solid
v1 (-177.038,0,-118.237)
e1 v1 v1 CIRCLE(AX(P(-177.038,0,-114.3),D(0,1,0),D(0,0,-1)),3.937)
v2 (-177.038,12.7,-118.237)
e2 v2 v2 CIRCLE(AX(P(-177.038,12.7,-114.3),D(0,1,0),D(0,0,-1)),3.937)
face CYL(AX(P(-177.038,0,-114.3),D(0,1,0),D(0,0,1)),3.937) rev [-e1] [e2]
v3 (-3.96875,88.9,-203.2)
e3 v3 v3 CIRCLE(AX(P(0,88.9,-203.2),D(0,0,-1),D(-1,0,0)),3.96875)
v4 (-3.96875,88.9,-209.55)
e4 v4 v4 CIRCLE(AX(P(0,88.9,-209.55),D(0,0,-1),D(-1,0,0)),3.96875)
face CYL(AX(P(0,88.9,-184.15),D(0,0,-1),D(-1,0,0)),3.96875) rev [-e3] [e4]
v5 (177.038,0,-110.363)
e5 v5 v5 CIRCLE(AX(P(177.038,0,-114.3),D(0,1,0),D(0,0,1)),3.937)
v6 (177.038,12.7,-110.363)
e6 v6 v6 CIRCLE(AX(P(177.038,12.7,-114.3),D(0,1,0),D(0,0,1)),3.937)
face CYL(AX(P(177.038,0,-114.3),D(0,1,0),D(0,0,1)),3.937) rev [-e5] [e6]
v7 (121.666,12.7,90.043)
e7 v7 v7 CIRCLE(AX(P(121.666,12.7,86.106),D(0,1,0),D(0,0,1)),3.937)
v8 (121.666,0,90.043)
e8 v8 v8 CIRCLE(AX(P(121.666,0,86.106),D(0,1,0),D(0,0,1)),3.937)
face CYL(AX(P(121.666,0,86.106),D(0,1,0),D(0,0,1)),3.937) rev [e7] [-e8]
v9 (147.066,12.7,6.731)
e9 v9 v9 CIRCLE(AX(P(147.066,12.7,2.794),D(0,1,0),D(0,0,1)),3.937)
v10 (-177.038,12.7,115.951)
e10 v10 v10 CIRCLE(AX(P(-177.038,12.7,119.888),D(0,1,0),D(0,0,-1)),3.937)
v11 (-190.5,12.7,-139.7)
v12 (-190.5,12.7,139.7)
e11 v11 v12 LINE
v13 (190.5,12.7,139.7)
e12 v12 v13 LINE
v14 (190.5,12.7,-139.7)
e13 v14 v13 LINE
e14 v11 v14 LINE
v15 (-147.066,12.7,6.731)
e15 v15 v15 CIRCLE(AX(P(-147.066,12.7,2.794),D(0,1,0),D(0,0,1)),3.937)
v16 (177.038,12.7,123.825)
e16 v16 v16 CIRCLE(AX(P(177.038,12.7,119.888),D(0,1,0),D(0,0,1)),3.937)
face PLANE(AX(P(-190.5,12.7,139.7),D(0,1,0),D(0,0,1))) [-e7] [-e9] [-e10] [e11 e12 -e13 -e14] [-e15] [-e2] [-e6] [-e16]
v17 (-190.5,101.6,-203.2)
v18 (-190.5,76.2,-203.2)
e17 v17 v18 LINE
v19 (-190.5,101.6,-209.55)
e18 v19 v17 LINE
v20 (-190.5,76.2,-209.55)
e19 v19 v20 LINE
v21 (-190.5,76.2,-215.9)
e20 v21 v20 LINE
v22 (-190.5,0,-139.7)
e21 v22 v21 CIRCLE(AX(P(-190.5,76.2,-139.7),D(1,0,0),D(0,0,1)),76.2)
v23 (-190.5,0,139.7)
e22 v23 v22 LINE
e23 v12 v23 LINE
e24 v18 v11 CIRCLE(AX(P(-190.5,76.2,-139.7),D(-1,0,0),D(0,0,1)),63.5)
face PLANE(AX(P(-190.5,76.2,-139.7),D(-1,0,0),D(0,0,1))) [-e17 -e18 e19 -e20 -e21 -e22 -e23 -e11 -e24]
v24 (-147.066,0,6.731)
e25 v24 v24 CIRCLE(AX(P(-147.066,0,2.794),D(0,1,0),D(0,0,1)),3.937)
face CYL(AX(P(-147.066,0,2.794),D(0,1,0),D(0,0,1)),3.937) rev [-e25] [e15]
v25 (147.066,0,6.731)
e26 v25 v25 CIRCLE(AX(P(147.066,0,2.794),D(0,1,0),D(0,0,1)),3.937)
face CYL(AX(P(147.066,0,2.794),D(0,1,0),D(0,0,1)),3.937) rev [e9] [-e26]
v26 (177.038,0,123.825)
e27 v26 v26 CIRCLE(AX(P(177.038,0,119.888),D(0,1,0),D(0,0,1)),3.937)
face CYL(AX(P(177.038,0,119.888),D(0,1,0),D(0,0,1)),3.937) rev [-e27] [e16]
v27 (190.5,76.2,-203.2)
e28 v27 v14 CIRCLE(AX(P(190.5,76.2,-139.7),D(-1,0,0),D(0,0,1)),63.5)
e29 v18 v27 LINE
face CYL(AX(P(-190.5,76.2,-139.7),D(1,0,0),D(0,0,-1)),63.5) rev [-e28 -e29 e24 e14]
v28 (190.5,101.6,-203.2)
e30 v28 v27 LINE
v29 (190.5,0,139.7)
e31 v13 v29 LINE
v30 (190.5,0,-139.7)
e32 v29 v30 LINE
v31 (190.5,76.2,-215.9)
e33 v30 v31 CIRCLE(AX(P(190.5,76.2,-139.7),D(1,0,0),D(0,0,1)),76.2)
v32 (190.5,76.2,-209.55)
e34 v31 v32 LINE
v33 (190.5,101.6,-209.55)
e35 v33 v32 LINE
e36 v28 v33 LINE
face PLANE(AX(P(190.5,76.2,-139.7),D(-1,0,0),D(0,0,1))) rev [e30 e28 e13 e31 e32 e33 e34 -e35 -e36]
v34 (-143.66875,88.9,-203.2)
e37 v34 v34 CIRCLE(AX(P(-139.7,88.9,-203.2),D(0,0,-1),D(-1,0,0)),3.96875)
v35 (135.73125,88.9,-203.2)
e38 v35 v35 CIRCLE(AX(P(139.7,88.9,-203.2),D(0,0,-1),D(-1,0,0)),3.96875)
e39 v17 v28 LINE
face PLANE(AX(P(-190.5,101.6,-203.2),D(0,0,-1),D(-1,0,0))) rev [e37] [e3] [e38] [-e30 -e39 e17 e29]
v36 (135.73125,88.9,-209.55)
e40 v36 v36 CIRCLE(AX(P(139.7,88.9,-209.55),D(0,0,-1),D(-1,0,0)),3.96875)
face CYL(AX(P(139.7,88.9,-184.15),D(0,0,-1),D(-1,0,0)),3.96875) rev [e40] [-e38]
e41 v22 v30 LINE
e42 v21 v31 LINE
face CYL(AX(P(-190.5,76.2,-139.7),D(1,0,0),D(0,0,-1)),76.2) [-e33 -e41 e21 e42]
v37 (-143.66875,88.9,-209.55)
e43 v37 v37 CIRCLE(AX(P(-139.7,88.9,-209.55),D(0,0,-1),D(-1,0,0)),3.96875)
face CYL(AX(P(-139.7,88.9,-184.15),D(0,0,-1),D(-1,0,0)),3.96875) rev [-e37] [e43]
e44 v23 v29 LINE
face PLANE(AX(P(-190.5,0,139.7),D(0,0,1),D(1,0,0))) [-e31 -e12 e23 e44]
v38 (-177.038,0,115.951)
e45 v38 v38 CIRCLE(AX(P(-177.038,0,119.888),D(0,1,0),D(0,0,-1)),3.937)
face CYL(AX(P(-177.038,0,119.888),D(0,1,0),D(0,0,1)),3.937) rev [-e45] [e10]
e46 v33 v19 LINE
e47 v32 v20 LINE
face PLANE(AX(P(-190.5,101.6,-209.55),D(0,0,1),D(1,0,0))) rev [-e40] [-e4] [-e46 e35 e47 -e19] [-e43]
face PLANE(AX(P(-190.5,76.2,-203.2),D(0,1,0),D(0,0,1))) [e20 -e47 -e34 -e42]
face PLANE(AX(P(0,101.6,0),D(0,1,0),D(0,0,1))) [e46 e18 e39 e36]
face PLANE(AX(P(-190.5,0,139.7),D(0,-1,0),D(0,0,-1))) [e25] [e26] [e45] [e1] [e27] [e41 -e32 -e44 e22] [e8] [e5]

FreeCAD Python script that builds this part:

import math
import FreeCAD as App
import Part
import Sketcher

V = App.Vector
Q = App.Units.Quantity

doc = App.newDocument("Part")
body = doc.addObject("PartDesign::Body", "Body")

# Sketch on YZ plane
sketch1 = doc.addObject("Sketcher::SketchObject", "Sketch")
body.addObject(sketch1)
sketch1.AttachmentSupport = (doc.YZ_Plane, [""])
sketch1.MapMode = "FlatFace"
sketch1.addGeometry([
    Part.LineSegment(V(0, 140, 0), V(0, -140, 0)),  # 0
    Part.ArcOfCircle(Part.Circle(V(76, -140, 0), V(0, 0, 1), 76), math.radians(-180), math.radians(-90)),  # 1
    Part.LineSegment(V(76, -216, 0), V(76, -203, 0)),  # 2
    Part.ArcOfCircle(Part.Circle(V(76, -140, 0), V(0, 0, 1), 64), math.radians(-180), math.radians(-90)),  # 3
    Part.LineSegment(V(13, -140, 0), V(13, 140, 0)),  # 4
    Part.LineSegment(V(13, 140, 0), V(0, 140, 0)),  # 5
], False)
sketch1.addConstraint([
    Sketcher.Constraint("Tangent", 0, 2, 1, 1),
    Sketcher.Constraint("Coincident", 1, 2, 2, 1),
    Sketcher.Constraint("Coincident", 2, 2, 3, 2),
    Sketcher.Constraint("Tangent", 3, 1, 4, 1),
    Sketcher.Constraint("Coincident", 4, 2, 5, 1),
    Sketcher.Constraint("Coincident", 5, 2, 0, 1),
    Sketcher.Constraint("Vertical", 0),
    Sketcher.Constraint("Vertical", 2),
    Sketcher.Constraint("Vertical", 4),
    Sketcher.Constraint("Horizontal", 5),
    Sketcher.Constraint("Coincident", 3, 3, 1, 3),
    Sketcher.Constraint("Symmetric", 0, 2, 5, 2, -1, 1),
    Sketcher.Constraint("Vertical", 3, 3, 1, 2),
    Sketcher.Constraint("Radius", 1, Q("3 in")),
    Sketcher.Constraint("Radius", 3, Q("2.5 in")),
    Sketcher.Constraint("DistanceY", 0, 2, 0, 1, Q("11 in")),
])
pad1 = doc.addObject("PartDesign::Pad", "Pad")
body.addObject(pad1)
pad1.Profile = sketch1
pad1.Type = "TwoLengths"
pad1.Length = Q("7.5 in")
pad1.Length2 = Q("7.5 in")

# Sketch on XZ plane
sketch2 = doc.addObject("Sketcher::SketchObject", "Sketch001")
body.addObject(sketch2)
sketch2.AttachmentSupport = (doc.XZ_Plane, [""])
sketch2.MapMode = "FlatFace"
sketch2.AttachmentOffset = App.Placement(V(0, 0, -3 * 25.4), App.Rotation())
sketch2.addGeometry([
    Part.LineSegment(V(-190, -210, 0), V(-190, -203, 0)),
    Part.LineSegment(V(-190, -203, 0), V(190, -203, 0)),
    Part.LineSegment(V(190, -203, 0), V(190, -210, 0)),
    Part.LineSegment(V(190, -210, 0), V(-190, -210, 0)),
], False)
sketch2.addConstraint([
    Sketcher.Constraint("Coincident", 0, 2, 1, 1),
    Sketcher.Constraint("Coincident", 1, 2, 2, 1),
    Sketcher.Constraint("Coincident", 2, 2, 3, 1),
    Sketcher.Constraint("Coincident", 3, 2, 0, 1),
    Sketcher.Constraint("Vertical", 0),
    Sketcher.Constraint("Horizontal", 1),
    Sketcher.Constraint("Vertical", 2),
    Sketcher.Constraint("Horizontal", 3),
    Sketcher.Constraint("DistanceX", 1, 1, 1, 2, Q("15 in")),
    Sketcher.Constraint("DistanceY", 0, 2, -1, 1, Q("8 in")),
    Sketcher.Constraint("DistanceY", 0, 1, 0, 2, Q("0.25 in")),
    Sketcher.Constraint("DistanceX", 0, 2, -1, 1, Q("7.5 in")),
])
pad2 = doc.addObject("PartDesign::Pad", "Pad001")
body.addObject(pad2)
pad2.Profile = sketch2
pad2.Length = Q("1 in")
pad2.Reversed = True

# Sketch on XY plane
sketch3 = doc.addObject("Sketcher::SketchObject", "Sketch002")
body.addObject(sketch3)
sketch3.AttachmentSupport = (doc.XY_Plane, [""])
sketch3.MapMode = "FlatFace"
sketch3.AttachmentOffset = App.Placement(V(0, 0, -8.25 * 25.4), App.Rotation())
sketch3.addGeometry([
    Part.Circle(V(139.7, 88.9, 0), V(0, 0, 1), 4),
    Part.Circle(V(-139.7, 88.9, 0), V(0, 0, 1), 4),
    Part.Circle(V(0, 88.9, 0), V(0, 0, 1), 4),
], False)
sketch3.addConstraint([
    Sketcher.Constraint("Equal", 0, 1),
    Sketcher.Constraint("Equal", 1, 2),
    Sketcher.Constraint("Symmetric", 0, 3, 1, 3, -2),
    Sketcher.Constraint("PointOnObject", 2, 3, -2),
    Sketcher.Constraint("Horizontal", 1, 3, 2, 3),
    Sketcher.Constraint("Diameter", 0, Q("0.3125 in")),
    Sketcher.Constraint("DistanceX", 1, 3, 0, 3, Q("11 in")),
    Sketcher.Constraint("DistanceY", -1, 1, 0, 3, Q("3.5 in")),
])
pocket1 = doc.addObject("PartDesign::Pocket", "Pocket")
body.addObject(pocket1)
pocket1.Profile = sketch3
pocket1.Length = Q("1 in")
pocket1.Reversed = True

# Sketch on XZ plane
sketch4 = doc.addObject("Sketcher::SketchObject", "Sketch003")
body.addObject(sketch4)
sketch4.AttachmentSupport = (doc.XZ_Plane, [""])
sketch4.MapMode = "FlatFace"
sketch4.AttachmentOffset = App.Placement(V(0, 0, -0.5 * 25.4), App.Rotation())
sketch4.addGeometry([
    Part.Circle(V(177, 119.9, 0), V(0, 0, 1), 3.9),  # 0
    Part.Circle(V(177, -114.3, 0), V(0, 0, 1), 3.9),  # 1
    Part.Circle(V(-177, 119.9, 0), V(0, 0, 1), 3.9),  # 2
    Part.Circle(V(-177, -114.3, 0), V(0, 0, 1), 3.9),  # 3
    Part.Circle(V(147.1, 2.8, 0), V(0, 0, 1), 3.9),  # 4
    Part.Circle(V(-147.1, 2.8, 0), V(0, 0, 1), 3.9),  # 5
    Part.Circle(V(121.7, 86.1, 0), V(0, 0, 1), 3.9),  # 6
], False)
sketch4.addConstraint([
    Sketcher.Constraint("Equal", 0, 1),
    Sketcher.Constraint("Equal", 1, 2),
    Sketcher.Constraint("Equal", 2, 3),
    Sketcher.Constraint("Equal", 3, 4),
    Sketcher.Constraint("Equal", 4, 5),
    Sketcher.Constraint("Equal", 5, 6),
    Sketcher.Constraint("Symmetric", 0, 3, 2, 3, -2),
    Sketcher.Constraint("Symmetric", 1, 3, 3, 3, -2),
    Sketcher.Constraint("Symmetric", 4, 3, 5, 3, -2),
    Sketcher.Constraint("Vertical", 0, 3, 1, 3),
    Sketcher.Constraint("Diameter", 0, Q("0.31 in")),
    Sketcher.Constraint("DistanceX", 6, 3, 4, 3, Q("1 in")),
    Sketcher.Constraint("DistanceY", 1, 3, -1, 1, Q("4.5 in")),
    Sketcher.Constraint("DistanceX", -1, 1, 0, 3, Q("6.97 in")),
    Sketcher.Constraint("DistanceY", -1, 1, 0, 3, Q("4.72 in")),
    Sketcher.Constraint("DistanceX", -1, 1, 4, 3, Q("5.79 in")),
    Sketcher.Constraint("DistanceY", -1, 1, 4, 3, Q("0.11 in")),
    Sketcher.Constraint("DistanceY", -1, 1, 6, 3, Q("3.39 in")),
])
pocket2 = doc.addObject("PartDesign::Pocket", "Pocket001")
body.addObject(pocket2)
pocket2.Profile = sketch4
pocket2.Type = "ThroughAll"
pocket2.Reversed = True

doc.recompute()
